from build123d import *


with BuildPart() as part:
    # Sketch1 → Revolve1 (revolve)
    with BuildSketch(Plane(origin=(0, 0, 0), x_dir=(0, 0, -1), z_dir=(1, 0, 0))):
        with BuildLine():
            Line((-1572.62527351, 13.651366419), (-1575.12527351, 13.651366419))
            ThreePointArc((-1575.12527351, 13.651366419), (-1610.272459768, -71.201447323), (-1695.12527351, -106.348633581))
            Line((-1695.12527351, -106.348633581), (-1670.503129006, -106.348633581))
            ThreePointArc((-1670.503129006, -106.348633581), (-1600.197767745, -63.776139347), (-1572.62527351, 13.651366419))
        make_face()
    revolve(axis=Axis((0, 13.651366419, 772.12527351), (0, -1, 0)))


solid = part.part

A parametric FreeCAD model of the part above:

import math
import FreeCAD as App
import Part
import Sketcher

V = App.Vector
Q = App.Units.Quantity

doc = App.newDocument("Part")
body = doc.addObject("PartDesign::Body", "Body")

sketch1 = body.newObject("Sketcher::SketchObject", "Sketch")
sketch1.AttachmentSupport = (doc.getObject("YZ_Plane"), [""])
sketch1.MapMode = "FlatFace"
sketch1.addGeometry([
    Part.LineSegment(V(13.7, 1572.6, 0), V(13.7, 1575.1, 0)),
    Part.ArcOfCircle(Part.Circle(V(13.7, 1695.1, 0), V(0, 0, 1), 120), math.radians(-180), math.radians(-90)),
    Part.LineSegment(V(-106.3, 1695.1, 0), V(-106.3, 1670.5, 0)),
    Part.ArcOfCircle(Part.Circle(V(13.7, 1695.1, 0), V(0, 0, 1), 122.5), math.radians(-168), math.radians(-90)),
], False)
sketch1.addGeometry(Part.LineSegment(V(13.7, 772.1, 0), V(-106.3, 772.1, 0)), True)
sketch1.addConstraint([
    Sketcher.Constraint("Coincident", 0, 2, 1, 2),
    Sketcher.Constraint("Tangent", 1, 1, 2, 1),
    Sketcher.Constraint("Coincident", 2, 2, 3, 1),
    Sketcher.Constraint("Coincident", 3, 2, 0, 1),
    Sketcher.Constraint("Vertical", 0),
    Sketcher.Constraint("Vertical", 2),
    Sketcher.Constraint("Horizontal", 4),
    Sketcher.Constraint("Coincident", 3, 3, 1, 3),
    Sketcher.Constraint("Vertical", 3, 3, 0, 2),
    Sketcher.Constraint("Vertical", 3, 2, 4, 1),
    Sketcher.Constraint("Vertical", 2, 2, 4, 2),
    Sketcher.Constraint("Radius", 1, Q("120 mm")),
    Sketcher.Constraint("Radius", 3, Q("122.5 mm")),
    Sketcher.Constraint("DistanceY", 4, 1, 0, 2, Q("803 mm")),
    Sketcher.Constraint("DistanceY", -1, 1, 2, 2, Q("1670.503129 mm")),
    Sketcher.Constraint("DistanceX", -1, 1, 1, 3, Q("13.651366 mm")),
])
revolution = body.newObject("PartDesign::Revolution", "Revolution")
revolution.Profile = sketch1
revolution.ReferenceAxis = (sketch1, ["Axis0"])
revolution.Angle = 360

doc.recompute()
